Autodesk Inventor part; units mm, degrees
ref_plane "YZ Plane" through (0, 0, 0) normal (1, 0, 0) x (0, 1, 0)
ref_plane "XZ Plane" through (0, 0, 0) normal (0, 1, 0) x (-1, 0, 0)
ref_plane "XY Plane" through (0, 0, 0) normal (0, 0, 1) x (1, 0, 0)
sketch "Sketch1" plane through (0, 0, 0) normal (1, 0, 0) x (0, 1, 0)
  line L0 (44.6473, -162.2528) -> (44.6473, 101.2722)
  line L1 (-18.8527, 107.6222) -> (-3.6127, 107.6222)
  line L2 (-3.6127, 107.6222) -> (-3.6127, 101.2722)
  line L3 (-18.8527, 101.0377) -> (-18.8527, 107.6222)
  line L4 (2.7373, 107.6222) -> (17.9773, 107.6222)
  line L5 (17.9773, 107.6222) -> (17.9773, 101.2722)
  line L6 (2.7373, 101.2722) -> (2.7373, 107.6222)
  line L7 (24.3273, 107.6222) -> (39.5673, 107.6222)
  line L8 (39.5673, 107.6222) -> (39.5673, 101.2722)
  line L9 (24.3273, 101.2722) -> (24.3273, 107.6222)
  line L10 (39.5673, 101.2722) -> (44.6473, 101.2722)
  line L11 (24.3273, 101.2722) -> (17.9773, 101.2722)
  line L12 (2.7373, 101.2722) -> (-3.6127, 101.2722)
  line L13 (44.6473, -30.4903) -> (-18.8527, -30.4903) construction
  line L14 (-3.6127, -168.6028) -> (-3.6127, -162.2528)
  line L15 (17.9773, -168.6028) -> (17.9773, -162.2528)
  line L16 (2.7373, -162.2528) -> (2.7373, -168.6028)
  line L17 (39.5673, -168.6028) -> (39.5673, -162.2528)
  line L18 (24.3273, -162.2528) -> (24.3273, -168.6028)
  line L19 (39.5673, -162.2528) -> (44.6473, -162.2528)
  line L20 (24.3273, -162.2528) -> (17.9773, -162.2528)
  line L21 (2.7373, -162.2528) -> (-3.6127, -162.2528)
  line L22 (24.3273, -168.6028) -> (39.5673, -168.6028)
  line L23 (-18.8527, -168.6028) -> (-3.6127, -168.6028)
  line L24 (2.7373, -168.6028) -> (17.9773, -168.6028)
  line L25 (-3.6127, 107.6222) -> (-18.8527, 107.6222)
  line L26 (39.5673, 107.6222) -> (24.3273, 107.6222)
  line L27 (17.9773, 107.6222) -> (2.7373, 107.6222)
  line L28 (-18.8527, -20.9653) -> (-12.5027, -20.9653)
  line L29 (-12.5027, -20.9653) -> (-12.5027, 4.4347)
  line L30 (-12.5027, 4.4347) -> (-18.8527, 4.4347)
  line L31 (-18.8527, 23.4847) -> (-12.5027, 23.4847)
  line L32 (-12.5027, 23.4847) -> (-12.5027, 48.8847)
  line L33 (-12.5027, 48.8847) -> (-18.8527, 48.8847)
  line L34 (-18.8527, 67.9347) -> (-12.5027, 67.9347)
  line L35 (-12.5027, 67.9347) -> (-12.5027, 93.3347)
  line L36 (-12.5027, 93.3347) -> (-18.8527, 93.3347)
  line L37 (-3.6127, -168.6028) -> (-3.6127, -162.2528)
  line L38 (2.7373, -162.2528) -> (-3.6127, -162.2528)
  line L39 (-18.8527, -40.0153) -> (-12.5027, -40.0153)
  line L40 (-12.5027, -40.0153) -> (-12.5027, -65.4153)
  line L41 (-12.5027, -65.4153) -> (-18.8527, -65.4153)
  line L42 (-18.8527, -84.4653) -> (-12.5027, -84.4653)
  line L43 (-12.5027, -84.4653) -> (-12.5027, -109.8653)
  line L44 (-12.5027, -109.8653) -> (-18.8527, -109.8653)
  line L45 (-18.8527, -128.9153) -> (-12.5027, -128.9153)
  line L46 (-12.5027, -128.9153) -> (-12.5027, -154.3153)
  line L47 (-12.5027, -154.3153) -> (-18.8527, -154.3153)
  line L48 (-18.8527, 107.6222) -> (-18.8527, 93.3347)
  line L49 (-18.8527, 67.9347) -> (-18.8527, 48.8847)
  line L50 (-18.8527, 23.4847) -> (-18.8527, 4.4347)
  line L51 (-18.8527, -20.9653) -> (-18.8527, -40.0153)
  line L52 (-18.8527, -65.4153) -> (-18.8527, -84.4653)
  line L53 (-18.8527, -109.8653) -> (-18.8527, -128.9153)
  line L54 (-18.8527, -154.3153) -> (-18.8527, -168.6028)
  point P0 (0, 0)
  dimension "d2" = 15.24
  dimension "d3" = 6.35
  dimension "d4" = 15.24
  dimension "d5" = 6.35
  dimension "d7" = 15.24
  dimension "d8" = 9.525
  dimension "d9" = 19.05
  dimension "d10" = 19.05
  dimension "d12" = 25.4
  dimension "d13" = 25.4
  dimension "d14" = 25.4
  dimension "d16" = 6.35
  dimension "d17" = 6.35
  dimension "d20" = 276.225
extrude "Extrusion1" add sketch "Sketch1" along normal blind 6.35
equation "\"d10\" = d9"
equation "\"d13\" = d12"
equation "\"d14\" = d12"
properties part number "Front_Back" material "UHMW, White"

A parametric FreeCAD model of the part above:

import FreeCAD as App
import Part
import Sketcher

V = App.Vector
Q = App.Units.Quantity

doc = App.newDocument("Part")
params = doc.addObject("Spreadsheet::Sheet", "Params")
for row, (alias, value) in enumerate([
    ("sketch1_height", "1 in"),
    ("sketch1_width", "0.6 in"),
    ("sketch1_width2", "0.25 in"),
    ("sketch1_height2", "0.75 in"),
    ("sketch1_width3", "0.2 in"),
    ("pad1_length", "0.25 in"),
], start=1):
    params.set(f"A{row}", alias)
    params.set(f"B{row}", "=" + value)
    params.setAlias(f"B{row}", alias)

body = doc.addObject("PartDesign::Body", "Body")

# Sketch on YZ plane
sketch1 = doc.addObject("Sketcher::SketchObject", "Sketch")
body.addObject(sketch1)
sketch1.AttachmentSupport = (doc.YZ_Plane, [""])
sketch1.MapMode = "FlatFace"
sketch1.addGeometry(Part.LineSegment(V(40, -162, 0), V(45, -162, 0)), False)
sketch1.addGeometry(Part.LineSegment(V(45, -162, 0), V(45, 101, 0)), False)
sketch1.addGeometry(Part.LineSegment(V(45, 101, 0), V(40, 101, 0)), False)
sketch1.addGeometry(Part.LineSegment(V(40, 101, 0), V(40, 108, 0)), False)
sketch1.addGeometry(Part.LineSegment(V(40, 108, 0), V(24, 108, 0)), False)
sketch1.addGeometry(Part.LineSegment(V(24, 108, 0), V(24, 101, 0)), False)
sketch1.addGeometry(Part.LineSegment(V(24, 101, 0), V(18, 101, 0)), False)
sketch1.addGeometry(Part.LineSegment(V(18, 101, 0), V(18, 108, 0)), False)
sketch1.addGeometry(Part.LineSegment(V(18, 108, 0), V(3, 108, 0)), False)
sketch1.addGeometry(Part.LineSegment(V(3, 108, 0), V(3, 101, 0)), False)
sketch1.addGeometry(Part.LineSegment(V(3, 101, 0), V(-4, 101, 0)), False)
sketch1.addGeometry(Part.LineSegment(V(-4, 101, 0), V(-4, 108, 0)), False)
sketch1.addGeometry(Part.LineSegment(V(-4, 108, 0), V(-19, 108, 0)), False)
sketch1.addGeometry(Part.LineSegment(V(-19, 108, 0), V(-19, 93, 0)), False)
sketch1.addGeometry(Part.LineSegment(V(-19, 93, 0), V(-13, 93, 0)), False)
sketch1.addGeometry(Part.LineSegment(V(-13, 93, 0), V(-13, 68, 0)), False)
sketch1.addGeometry(Part.LineSegment(V(-13, 68, 0), V(-19, 68, 0)), False)
sketch1.addGeometry(Part.LineSegment(V(-19, 68, 0), V(-19, 49, 0)), False)
sketch1.addGeometry(Part.LineSegment(V(-19, 49, 0), V(-13, 49, 0)), False)
sketch1.addGeometry(Part.LineSegment(V(-13, 49, 0), V(-13, 23, 0)), False)
sketch1.addGeometry(Part.LineSegment(V(-13, 23, 0), V(-19, 23, 0)), False)
sketch1.addGeometry(Part.LineSegment(V(-19, 23, 0), V(-19, 4, 0)), False)
sketch1.addGeometry(Part.LineSegment(V(-19, 4, 0), V(-13, 4, 0)), False)
sketch1.addGeometry(Part.LineSegment(V(-13, 4, 0), V(-13, -21, 0)), False)
sketch1.addGeometry(Part.LineSegment(V(-13, -21, 0), V(-19, -21, 0)), False)
sketch1.addGeometry(Part.LineSegment(V(-19, -21, 0), V(-19, -40, 0)), False)
sketch1.addGeometry(Part.LineSegment(V(-19, -40, 0), V(-13, -40, 0)), False)
sketch1.addGeometry(Part.LineSegment(V(-13, -40, 0), V(-13, -65, 0)), False)
sketch1.addGeometry(Part.LineSegment(V(-13, -65, 0), V(-19, -65, 0)), False)
sketch1.addGeometry(Part.LineSegment(V(-19, -65, 0), V(-19, -84, 0)), False)
sketch1.addGeometry(Part.LineSegment(V(-19, -84, 0), V(-13, -84, 0)), False)
sketch1.addGeometry(Part.LineSegment(V(-13, -84, 0), V(-13, -110, 0)), False)
sketch1.addGeometry(Part.LineSegment(V(-13, -110, 0), V(-19, -110, 0)), False)
sketch1.addGeometry(Part.LineSegment(V(-19, -110, 0), V(-19, -129, 0)), False)
sketch1.addGeometry(Part.LineSegment(V(-19, -129, 0), V(-13, -129, 0)), False)
sketch1.addGeometry(Part.LineSegment(V(-13, -129, 0), V(-13, -154, 0)), False)
sketch1.addGeometry(Part.LineSegment(V(-13, -154, 0), V(-19, -154, 0)), False)
sketch1.addGeometry(Part.LineSegment(V(-19, -154, 0), V(-19, -169, 0)), False)
sketch1.addGeometry(Part.LineSegment(V(-19, -169, 0), V(-4, -169, 0)), False)
sketch1.addGeometry(Part.LineSegment(V(-4, -169, 0), V(-4, -162, 0)), False)
sketch1.addGeometry(Part.LineSegment(V(-4, -162, 0), V(3, -162, 0)), False)
sketch1.addGeometry(Part.LineSegment(V(3, -162, 0), V(3, -169, 0)), False)
sketch1.addGeometry(Part.LineSegment(V(3, -169, 0), V(18, -169, 0)), False)
sketch1.addGeometry(Part.LineSegment(V(18, -169, 0), V(18, -162, 0)), False)
sketch1.addGeometry(Part.LineSegment(V(18, -162, 0), V(24, -162, 0)), False)
sketch1.addGeometry(Part.LineSegment(V(24, -162, 0), V(24, -169, 0)), False)
sketch1.addGeometry(Part.LineSegment(V(24, -169, 0), V(40, -169, 0)), False)
sketch1.addGeometry(Part.LineSegment(V(40, -169, 0), V(40, -162, 0)), False)
sketch1.addConstraint(Sketcher.Constraint("Coincident", 0, 2, 1, 1))
sketch1.addConstraint(Sketcher.Constraint("Coincident", 1, 2, 2, 1))
sketch1.addConstraint(Sketcher.Constraint("Coincident", 2, 2, 3, 1))
sketch1.addConstraint(Sketcher.Constraint("Coincident", 3, 2, 4, 1))
sketch1.addConstraint(Sketcher.Constraint("Coincident", 4, 2, 5, 1))
sketch1.addConstraint(Sketcher.Constraint("Coincident", 5, 2, 6, 1))
sketch1.addConstraint(Sketcher.Constraint("Coincident", 6, 2, 7, 1))
sketch1.addConstraint(Sketcher.Constraint("Coincident", 7, 2, 8, 1))
sketch1.addConstraint(Sketcher.Constraint("Coincident", 8, 2, 9, 1))
sketch1.addConstraint(Sketcher.Constraint("Coincident", 9, 2, 10, 1))
sketch1.addConstraint(Sketcher.Constraint("Coincident", 10, 2, 11, 1))
sketch1.addConstraint(Sketcher.Constraint("Coincident", 11, 2, 12, 1))
sketch1.addConstraint(Sketcher.Constraint("Coincident", 12, 2, 13, 1))
sketch1.addConstraint(Sketcher.Constraint("Coincident", 13, 2, 14, 1))
sketch1.addConstraint(Sketcher.Constraint("Coincident", 14, 2, 15, 1))
sketch1.addConstraint(Sketcher.Constraint("Coincident", 15, 2, 16, 1))
sketch1.addConstraint(Sketcher.Constraint("Coincident", 16, 2, 17, 1))
sketch1.addConstraint(Sketcher.Constraint("Coincident", 17, 2, 18, 1))
sketch1.addConstraint(Sketcher.Constraint("Coincident", 18, 2, 19, 1))
sketch1.addConstraint(Sketcher.Constraint("Coincident", 19, 2, 20, 1))
sketch1.addConstraint(Sketcher.Constraint("Coincident", 20, 2, 21, 1))
sketch1.addConstraint(Sketcher.Constraint("Coincident", 21, 2, 22, 1))
sketch1.addConstraint(Sketcher.Constraint("Coincident", 22, 2, 23, 1))
sketch1.addConstraint(Sketcher.Constraint("Coincident", 23, 2, 24, 1))
sketch1.addConstraint(Sketcher.Constraint("Coincident", 24, 2, 25, 1))
sketch1.addConstraint(Sketcher.Constraint("Coincident", 25, 2, 26, 1))
sketch1.addConstraint(Sketcher.Constraint("Coincident", 26, 2, 27, 1))
sketch1.addConstraint(Sketcher.Constraint("Coincident", 27, 2, 28, 1))
sketch1.addConstraint(Sketcher.Constraint("Coincident", 28, 2, 29, 1))
sketch1.addConstraint(Sketcher.Constraint("Coincident", 29, 2, 30, 1))
sketch1.addConstraint(Sketcher.Constraint("Coincident", 30, 2, 31, 1))
sketch1.addConstraint(Sketcher.Constraint("Coincident", 31, 2, 32, 1))
sketch1.addConstraint(Sketcher.Constraint("Coincident", 32, 2, 33, 1))
sketch1.addConstraint(Sketcher.Constraint("Coincident", 33, 2, 34, 1))
sketch1.addConstraint(Sketcher.Constraint("Coincident", 34, 2, 35, 1))
sketch1.addConstraint(Sketcher.Constraint("Coincident", 35, 2, 36, 1))
sketch1.addConstraint(Sketcher.Constraint("Coincident", 36, 2, 37, 1))
sketch1.addConstraint(Sketcher.Constraint("Coincident", 37, 2, 38, 1))
sketch1.addConstraint(Sketcher.Constraint("Coincident", 38, 2, 39, 1))
sketch1.addConstraint(Sketcher.Constraint("Coincident", 39, 2, 40, 1))
sketch1.addConstraint(Sketcher.Constraint("Coincident", 40, 2, 41, 1))
sketch1.addConstraint(Sketcher.Constraint("Coincident", 41, 2, 42, 1))
sketch1.addConstraint(Sketcher.Constraint("Coincident", 42, 2, 43, 1))
sketch1.addConstraint(Sketcher.Constraint("Coincident", 43, 2, 44, 1))
sketch1.addConstraint(Sketcher.Constraint("Coincident", 44, 2, 45, 1))
sketch1.addConstraint(Sketcher.Constraint("Coincident", 45, 2, 46, 1))
sketch1.addConstraint(Sketcher.Constraint("Coincident", 46, 2, 47, 1))
sketch1.addConstraint(Sketcher.Constraint("Coincident", 47, 2, 0, 1))
sketch1.addConstraint(Sketcher.Constraint("Horizontal", 0))
sketch1.addConstraint(Sketcher.Constraint("Vertical", 1))
sketch1.addConstraint(Sketcher.Constraint("Horizontal", 2))
sketch1.addConstraint(Sketcher.Constraint("Vertical", 3))
sketch1.addConstraint(Sketcher.Constraint("Horizontal", 4))
sketch1.addConstraint(Sketcher.Constraint("Vertical", 5))
sketch1.addConstraint(Sketcher.Constraint("Horizontal", 6))
sketch1.addConstraint(Sketcher.Constraint("Vertical", 7))
sketch1.addConstraint(Sketcher.Constraint("Horizontal", 8))
sketch1.addConstraint(Sketcher.Constraint("Vertical", 9))
sketch1.addConstraint(Sketcher.Constraint("Horizontal", 10))
sketch1.addConstraint(Sketcher.Constraint("Vertical", 11))
sketch1.addConstraint(Sketcher.Constraint("Horizontal", 12))
sketch1.addConstraint(Sketcher.Constraint("Vertical", 13))
sketch1.addConstraint(Sketcher.Constraint("Horizontal", 14))
sketch1.addConstraint(Sketcher.Constraint("Vertical", 15))
sketch1.addConstraint(Sketcher.Constraint("Horizontal", 16))
sketch1.addConstraint(Sketcher.Constraint("Vertical", 17))
sketch1.addConstraint(Sketcher.Constraint("Horizontal", 18))
sketch1.addConstraint(Sketcher.Constraint("Vertical", 19))
sketch1.addConstraint(Sketcher.Constraint("Horizontal", 20))
sketch1.addConstraint(Sketcher.Constraint("Vertical", 21))
sketch1.addConstraint(Sketcher.Constraint("Horizontal", 22))
sketch1.addConstraint(Sketcher.Constraint("Vertical", 23))
sketch1.addConstraint(Sketcher.Constraint("Horizontal", 24))
sketch1.addConstraint(Sketcher.Constraint("Vertical", 25))
sketch1.addConstraint(Sketcher.Constraint("Horizontal", 26))
sketch1.addConstraint(Sketcher.Constraint("Vertical", 27))
sketch1.addConstraint(Sketcher.Constraint("Horizontal", 28))
sketch1.addConstraint(Sketcher.Constraint("Vertical", 29))
sketch1.addConstraint(Sketcher.Constraint("Horizontal", 30))
sketch1.addConstraint(Sketcher.Constraint("Vertical", 31))
sketch1.addConstraint(Sketcher.Constraint("Horizontal", 32))
sketch1.addConstraint(Sketcher.Constraint("Vertical", 33))
sketch1.addConstraint(Sketcher.Constraint("Horizontal", 34))
sketch1.addConstraint(Sketcher.Constraint("Vertical", 35))
sketch1.addConstraint(Sketcher.Constraint("Horizontal", 36))
sketch1.addConstraint(Sketcher.Constraint("Vertical", 37))
sketch1.addConstraint(Sketcher.Constraint("Horizontal", 38))
sketch1.addConstraint(Sketcher.Constraint("Vertical", 39))
sketch1.addConstraint(Sketcher.Constraint("Horizontal", 40))
sketch1.addConstraint(Sketcher.Constraint("Vertical", 41))
sketch1.addConstraint(Sketcher.Constraint("Horizontal", 42))
sketch1.addConstraint(Sketcher.Constraint("Vertical", 43))
sketch1.addConstraint(Sketcher.Constraint("Horizontal", 44))
sketch1.addConstraint(Sketcher.Constraint("Vertical", 45))
sketch1.addConstraint(Sketcher.Constraint("Horizontal", 46))
sketch1.addConstraint(Sketcher.Constraint("Vertical", 47))
sketch1.addConstraint(Sketcher.Constraint("Horizontal", 2, 2, 5, 2))
sketch1.addConstraint(Sketcher.Constraint("Horizontal", 4, 2, 7, 2))
sketch1.addConstraint(Sketcher.Constraint("Horizontal", 6, 2, 9, 2))
sketch1.addConstraint(Sketcher.Constraint("Horizontal", 8, 2, 11, 2))
sketch1.addConstraint(Sketcher.Constraint("Horizontal", 0, 2, 39, 2))
sketch1.addConstraint(Sketcher.Constraint("Horizontal", 38, 2, 41, 2))
sketch1.addConstraint(Sketcher.Constraint("Horizontal", 40, 2, 43, 2))
sketch1.addConstraint(Sketcher.Constraint("Horizontal", 42, 2, 45, 2))
sketch1.addConstraint(Sketcher.Constraint("Vertical", 13, 2, 16, 2))
sketch1.addConstraint(Sketcher.Constraint("Vertical", 15, 2, 18, 2))
sketch1.addConstraint(Sketcher.Constraint("Vertical", 17, 2, 20, 2))
sketch1.addConstraint(Sketcher.Constraint("Vertical", 19, 2, 22, 2))
sketch1.addConstraint(Sketcher.Constraint("Vertical", 21, 2, 24, 2))
sketch1.addConstraint(Sketcher.Constraint("Vertical", 23, 2, 26, 2))
sketch1.addConstraint(Sketcher.Constraint("Vertical", 25, 2, 28, 2))
sketch1.addConstraint(Sketcher.Constraint("Vertical", 27, 2, 30, 2))
sketch1.addConstraint(Sketcher.Constraint("Vertical", 29, 2, 32, 2))
sketch1.addConstraint(Sketcher.Constraint("Vertical", 31, 2, 34, 2))
sketch1.addConstraint(Sketcher.Constraint("Vertical", 33, 2, 36, 2))
sketch1.addConstraint(Sketcher.Constraint("Vertical", 11, 2, 38, 2))
sketch1.addConstraint(Sketcher.Constraint("Vertical", 9, 2, 40, 2))
sketch1.addConstraint(Sketcher.Constraint("Vertical", 7, 2, 42, 2))
sketch1.addConstraint(Sketcher.Constraint("Vertical", 5, 2, 44, 2))
sketch1.addConstraint(Sketcher.Constraint("Vertical", 3, 2, 46, 2))
sketch1.addConstraint(Sketcher.Constraint("Equal", 4, 8))
sketch1.addConstraint(Sketcher.Constraint("Equal", 6, 10))
sketch1.addConstraint(Sketcher.Constraint("Equal", 8, 12))
sketch1.addConstraint(Sketcher.Constraint("Equal", 10, 14))
sketch1.addConstraint(Sketcher.Constraint("Equal", 44, 3))
sketch1.addConstraint(Sketcher.Constraint("Equal", 15, 19))
sketch1.addConstraint(Sketcher.Constraint("Equal", 17, 21))
sketch1.addConstraint(Sketcher.Constraint("Equal", 19, 23))
sketch1.addConstraint(Sketcher.Constraint("Equal", 21, 25))
sketch1.addConstraint(Sketcher.Constraint("Equal", 23, 27))
sketch1.addConstraint(Sketcher.Constraint("Equal", 25, 29))
sketch1.addConstraint(Sketcher.Constraint("Equal", 27, 31))
sketch1.addConstraint(Sketcher.Constraint("Equal", 29, 33))
sketch1.addConstraint(Sketcher.Constraint("Equal", 31, 35))
sketch1.addConstraint(Sketcher.Constraint("Equal", 13, 37))
sketch1.addConstraint(Sketcher.Constraint("Equal", 11, 39))
sketch1.addConstraint(Sketcher.Constraint("DistanceY", 15, 2, 15, 1, Q("1 in")))
sketch1.addConstraint(Sketcher.Constraint("DistanceX", 4, 2, 4, 1, Q("0.6 in")))
sketch1.addConstraint(Sketcher.Constraint("DistanceX", 6, 2, 6, 1, Q("0.25 in")))
sketch1.addConstraint(Sketcher.Constraint("DistanceY", 17, 2, 17, 1, Q("0.75 in")))
sketch1.addConstraint(Sketcher.Constraint("DistanceX", 0, 1, 0, 2, Q("0.2 in")))
sketch1.addConstraint(Sketcher.Constraint("DistanceY", 1, 1, 1, 2, Q("10.375 in")))
sketch1.addConstraint(Sketcher.Constraint("DistanceY", 0, 2, -1, 1, Q("6.3879 in")))
sketch1.addConstraint(Sketcher.Constraint("DistanceX", -1, 1, 0, 2, 44.6473))
sketch1.setExpression("Constraints[136]", "Params.sketch1_height")
sketch1.setExpression("Constraints[137]", "Params.sketch1_width")
sketch1.setExpression("Constraints[138]", "Params.sketch1_width2")
sketch1.setExpression("Constraints[139]", "Params.sketch1_height2")
sketch1.setExpression("Constraints[140]", "Params.sketch1_width3")
pad1 = doc.addObject("PartDesign::Pad", "Pad")
body.addObject(pad1)
pad1.Profile = sketch1
pad1.setExpression("Length", "Params.pad1_length")

doc.recompute()
